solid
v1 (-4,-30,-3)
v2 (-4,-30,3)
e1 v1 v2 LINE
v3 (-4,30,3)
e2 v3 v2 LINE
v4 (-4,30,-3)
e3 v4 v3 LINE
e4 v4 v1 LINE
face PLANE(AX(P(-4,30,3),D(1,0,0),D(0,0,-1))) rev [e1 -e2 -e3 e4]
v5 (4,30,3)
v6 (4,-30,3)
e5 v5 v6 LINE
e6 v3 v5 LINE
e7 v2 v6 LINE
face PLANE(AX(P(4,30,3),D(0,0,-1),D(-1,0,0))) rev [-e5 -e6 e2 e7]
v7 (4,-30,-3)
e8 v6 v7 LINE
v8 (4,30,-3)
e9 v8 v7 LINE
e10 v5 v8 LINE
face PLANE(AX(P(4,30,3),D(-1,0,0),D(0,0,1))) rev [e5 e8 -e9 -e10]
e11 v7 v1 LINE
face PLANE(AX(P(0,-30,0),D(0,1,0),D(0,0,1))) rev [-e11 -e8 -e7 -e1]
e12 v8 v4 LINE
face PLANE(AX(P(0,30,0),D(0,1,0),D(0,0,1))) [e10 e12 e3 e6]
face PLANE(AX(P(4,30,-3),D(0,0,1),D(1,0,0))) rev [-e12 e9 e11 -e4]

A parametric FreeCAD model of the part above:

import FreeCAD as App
import Part
import Sketcher
from FreeCAD import Vector
Q = App.Units.Quantity

doc = App.newDocument("Part")
body = doc.addObject("PartDesign::Body", "Body")

# Sketch on XZ plane
sketch1 = body.newObject("Sketcher::SketchObject", "Sketch")
sketch1.AttachmentSupport = (doc.getObject("XZ_Plane"), [""])
sketch1.MapMode = "FlatFace"
sketch1.addGeometry(Part.LineSegment(Vector(4, 3, 0), Vector(4, -3, 0)), False)
sketch1.addGeometry(Part.LineSegment(Vector(4, -3, 0), Vector(-4, -3, 0)), False)
sketch1.addGeometry(Part.LineSegment(Vector(-4, -3, 0), Vector(-4, 3, 0)), False)
sketch1.addGeometry(Part.LineSegment(Vector(-4, 3, 0), Vector(4, 3, 0)), False)
sketch1.addConstraint(Sketcher.Constraint("Coincident", 0, 2, 1, 1))
sketch1.addConstraint(Sketcher.Constraint("Coincident", 1, 2, 2, 1))
sketch1.addConstraint(Sketcher.Constraint("Coincident", 2, 2, 3, 1))
sketch1.addConstraint(Sketcher.Constraint("Coincident", 3, 2, 0, 1))
sketch1.addConstraint(Sketcher.Constraint("Vertical", 0))
sketch1.addConstraint(Sketcher.Constraint("Horizontal", 1))
sketch1.addConstraint(Sketcher.Constraint("Vertical", 2))
sketch1.addConstraint(Sketcher.Constraint("Horizontal", 3))
sketch1.addConstraint(Sketcher.Constraint("Symmetric", 0, 2, 2, 2, -1, 1))
sketch1.addConstraint(Sketcher.Constraint("DistanceX", 1, 2, 1, 1, Q("8 mm")))
sketch1.addConstraint(Sketcher.Constraint("DistanceY", 0, 2, 0, 1, Q("6 mm")))
pad1 = body.newObject("PartDesign::Pad", "Pad")
pad1.Profile = sketch1
pad1.Length = 60
pad1.Midplane = True

doc.recompute()
